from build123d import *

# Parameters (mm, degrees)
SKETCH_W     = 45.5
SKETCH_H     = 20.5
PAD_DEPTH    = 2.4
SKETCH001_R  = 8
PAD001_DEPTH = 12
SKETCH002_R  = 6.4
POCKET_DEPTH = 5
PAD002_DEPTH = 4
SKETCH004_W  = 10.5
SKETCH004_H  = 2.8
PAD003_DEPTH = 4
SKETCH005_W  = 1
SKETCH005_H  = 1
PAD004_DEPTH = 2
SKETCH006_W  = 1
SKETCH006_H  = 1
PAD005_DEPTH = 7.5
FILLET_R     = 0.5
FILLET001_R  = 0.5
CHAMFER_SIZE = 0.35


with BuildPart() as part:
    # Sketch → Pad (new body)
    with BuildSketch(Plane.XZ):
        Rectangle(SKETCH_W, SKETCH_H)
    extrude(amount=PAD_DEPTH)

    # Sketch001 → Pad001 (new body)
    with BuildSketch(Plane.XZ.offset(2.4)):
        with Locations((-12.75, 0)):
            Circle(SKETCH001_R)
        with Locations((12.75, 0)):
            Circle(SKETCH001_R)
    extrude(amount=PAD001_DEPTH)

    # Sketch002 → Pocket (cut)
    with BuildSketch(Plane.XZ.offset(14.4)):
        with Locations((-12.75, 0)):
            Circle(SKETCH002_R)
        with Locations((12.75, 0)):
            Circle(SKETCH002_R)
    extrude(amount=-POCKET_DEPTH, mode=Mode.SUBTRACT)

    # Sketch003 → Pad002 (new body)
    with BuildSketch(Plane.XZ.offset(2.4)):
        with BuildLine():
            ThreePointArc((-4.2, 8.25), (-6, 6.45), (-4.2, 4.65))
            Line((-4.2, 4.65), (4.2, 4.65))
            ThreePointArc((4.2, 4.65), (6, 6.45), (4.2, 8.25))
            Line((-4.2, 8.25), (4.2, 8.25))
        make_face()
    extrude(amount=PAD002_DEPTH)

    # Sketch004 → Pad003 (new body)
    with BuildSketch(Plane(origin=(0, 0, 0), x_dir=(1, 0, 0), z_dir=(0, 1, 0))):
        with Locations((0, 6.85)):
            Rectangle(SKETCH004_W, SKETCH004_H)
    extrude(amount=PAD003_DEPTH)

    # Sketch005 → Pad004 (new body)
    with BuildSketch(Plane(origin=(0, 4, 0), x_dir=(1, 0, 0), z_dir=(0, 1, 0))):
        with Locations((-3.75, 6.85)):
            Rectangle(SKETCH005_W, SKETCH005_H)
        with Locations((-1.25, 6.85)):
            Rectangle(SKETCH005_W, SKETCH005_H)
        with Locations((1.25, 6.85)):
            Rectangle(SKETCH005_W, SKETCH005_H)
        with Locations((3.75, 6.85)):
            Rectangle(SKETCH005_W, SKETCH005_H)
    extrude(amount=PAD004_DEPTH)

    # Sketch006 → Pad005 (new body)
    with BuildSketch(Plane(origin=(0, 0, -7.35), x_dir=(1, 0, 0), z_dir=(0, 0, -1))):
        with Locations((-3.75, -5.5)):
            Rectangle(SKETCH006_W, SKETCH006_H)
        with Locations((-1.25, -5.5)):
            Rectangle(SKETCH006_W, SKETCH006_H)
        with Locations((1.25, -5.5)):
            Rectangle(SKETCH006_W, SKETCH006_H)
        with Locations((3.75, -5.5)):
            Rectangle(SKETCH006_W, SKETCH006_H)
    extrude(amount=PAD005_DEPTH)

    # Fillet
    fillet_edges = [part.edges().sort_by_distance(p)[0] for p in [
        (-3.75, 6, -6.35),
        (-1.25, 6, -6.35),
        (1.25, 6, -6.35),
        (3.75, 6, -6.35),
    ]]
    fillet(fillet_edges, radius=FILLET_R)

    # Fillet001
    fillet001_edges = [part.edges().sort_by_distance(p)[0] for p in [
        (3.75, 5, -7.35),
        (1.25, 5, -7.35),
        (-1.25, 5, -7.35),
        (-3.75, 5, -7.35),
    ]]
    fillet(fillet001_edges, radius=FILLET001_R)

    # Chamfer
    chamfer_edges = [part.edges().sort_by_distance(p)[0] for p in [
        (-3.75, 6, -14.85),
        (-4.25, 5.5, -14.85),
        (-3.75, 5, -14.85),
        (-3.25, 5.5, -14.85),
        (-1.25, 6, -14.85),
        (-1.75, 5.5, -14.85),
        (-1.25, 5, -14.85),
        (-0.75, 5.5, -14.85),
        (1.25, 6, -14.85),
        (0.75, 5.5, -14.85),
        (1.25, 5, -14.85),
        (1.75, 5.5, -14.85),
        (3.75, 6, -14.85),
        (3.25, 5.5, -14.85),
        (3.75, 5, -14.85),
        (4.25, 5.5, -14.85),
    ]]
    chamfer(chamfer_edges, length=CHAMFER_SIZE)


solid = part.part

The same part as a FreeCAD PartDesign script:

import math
import FreeCAD as App
import Part
import Sketcher
Q = App.Units.Quantity


def edges_at(feature, points):
    """Names of the edges that pass closest to the given points."""
    edges = feature.Shape.Edges
    near = lambda p: min(range(len(edges)), key=lambda i: edges[i].distToShape(Part.Vertex(*p))[0])
    return sorted({f"Edge{near(p) + 1}" for p in points})


def add_polygon(sketch, points):
    """Adds a closed chain of lines whose ends are joined by coincident constraints."""
    first, n = sketch.GeometryCount, len(points)
    for a, b in zip(points, points[1:] + points[:1]):
        sketch.addGeometry(Part.LineSegment(App.Vector(*a, 0), App.Vector(*b, 0)), False)
    for i in range(n):
        sketch.addConstraint(Sketcher.Constraint("Coincident", first + i, 2, first + (i + 1) % n, 1))

doc = App.newDocument("Part")
body = doc.addObject("PartDesign::Body", "Body")

# Sketch on XZ plane
sketch1 = doc.addObject("Sketcher::SketchObject", "Sketch")
body.addObject(sketch1)
sketch1.AttachmentSupport = (doc.XZ_Plane, [""])
sketch1.MapMode = "FlatFace"
add_polygon(sketch1, [(-23, 10), (-23, -10), (23, -10), (23, 10)])  # lines 0-3
sketch1.addConstraint([
    Sketcher.Constraint("Vertical", 0),
    Sketcher.Constraint("Horizontal", 1),
    Sketcher.Constraint("Vertical", 2),
    Sketcher.Constraint("Horizontal", 3),
    Sketcher.Constraint("Symmetric", 0, 2, 2, 2, -1, 1),
    Sketcher.Constraint("DistanceX", 1, 1, 1, 2, Q("45.5 mm")),
    Sketcher.Constraint("DistanceY", 0, 2, 0, 1, Q("20.5 mm")),
])
pad1 = doc.addObject("PartDesign::Pad", "Pad")
body.addObject(pad1)
pad1.Profile = sketch1
pad1.Length = 2.4

# Sketch on XZ plane
sketch2 = doc.addObject("Sketcher::SketchObject", "Sketch001")
body.addObject(sketch2)
sketch2.AttachmentSupport = (doc.XZ_Plane, [""])
sketch2.MapMode = "FlatFace"
sketch2.AttachmentOffset = App.Placement(App.Vector(0, 0, 2.4), App.Rotation())
sketch2.addGeometry([
    Part.Circle(App.Vector(-13, 0, 0), App.Vector(0, 0, 1), 8),
    Part.Circle(App.Vector(13, 0, 0), App.Vector(0, 0, 1), 8),
], False)
sketch2.addConstraint([
    Sketcher.Constraint("Equal", 0, 1),
    Sketcher.Constraint("Symmetric", 0, 3, 1, 3, -1, 1),
    Sketcher.Constraint("PointOnObject", 0, 3, -1),
    Sketcher.Constraint("Diameter", 0, Q("16 mm")),
    Sketcher.Constraint("DistanceX", 0, 3, 1, 3, Q("25.5 mm")),
])
pad2 = doc.addObject("PartDesign::Pad", "Pad001")
body.addObject(pad2)
pad2.Profile = sketch2
pad2.Length = 12

# Sketch on XZ plane
sketch3 = doc.addObject("Sketcher::SketchObject", "Sketch002")
body.addObject(sketch3)
sketch3.AttachmentSupport = (doc.XZ_Plane, [""])
sketch3.MapMode = "FlatFace"
sketch3.AttachmentOffset = App.Placement(App.Vector(0, 0, 14.4), App.Rotation())
sketch3.addGeometry([
    Part.Circle(App.Vector(-13, 0, 0), App.Vector(0, 0, 1), 6),
    Part.Circle(App.Vector(13, 0, 0), App.Vector(0, 0, 1), 6),
], False)
sketch3.addConstraint([
    Sketcher.Constraint("Equal", 0, 1),
    Sketcher.Constraint("Symmetric", 0, 3, 1, 3, -1, 1),
    Sketcher.Constraint("PointOnObject", 0, 3, -1),
    Sketcher.Constraint("Diameter", 0, Q("12.8 mm")),
    Sketcher.Constraint("DistanceX", 0, 3, 1, 3, Q("25.5 mm")),
])
pocket1 = doc.addObject("PartDesign::Pocket", "Pocket")
body.addObject(pocket1)
pocket1.Profile = sketch3
pocket1.Length = 5

# Sketch on XZ plane
sketch4 = doc.addObject("Sketcher::SketchObject", "Sketch003")
body.addObject(sketch4)
sketch4.AttachmentSupport = (doc.XZ_Plane, [""])
sketch4.MapMode = "FlatFace"
sketch4.AttachmentOffset = App.Placement(App.Vector(0, 0, 2.4), App.Rotation())
sketch4.addGeometry([
    Part.ArcOfCircle(Part.Circle(App.Vector(-4.2, 6.5, 0), App.Vector(0, 0, 1), 1.8), math.radians(90), math.radians(270)),
    Part.LineSegment(App.Vector(-4.2, 4.7, 0), App.Vector(4.2, 4.7, 0)),
    Part.ArcOfCircle(Part.Circle(App.Vector(4.2, 6.5, 0), App.Vector(0, 0, 1), 1.8), math.radians(-90), math.radians(90)),
    Part.LineSegment(App.Vector(4.2, 8.2, 0), App.Vector(-4.2, 8.2, 0)),
], False)
sketch4.addConstraint([
    Sketcher.Constraint("Tangent", 0, 2, 1, 1),
    Sketcher.Constraint("Tangent", 1, 2, 2, 1),
    Sketcher.Constraint("Tangent", 2, 2, 3, 1),
    Sketcher.Constraint("Tangent", 3, 2, 0, 1),
    Sketcher.Constraint("Horizontal", 1),
    Sketcher.Constraint("Horizontal", 3),
    Sketcher.Constraint("Radius", 0, Q("1.8 mm")),
    Sketcher.Constraint("DistanceX", 1, 1, 1, 2, Q("8.4 mm")),
    Sketcher.Constraint("DistanceX", 0, 3, -1, 1, Q("4.2 mm")),
    Sketcher.Constraint("DistanceY", -1, 1, 0, 3, Q("6.45 mm")),
])
pad3 = doc.addObject("PartDesign::Pad", "Pad002")
body.addObject(pad3)
pad3.Profile = sketch4
pad3.Length = 4

# Sketch on XZ plane
sketch5 = doc.addObject("Sketcher::SketchObject", "Sketch004")
body.addObject(sketch5)
sketch5.AttachmentSupport = (doc.XZ_Plane, [""])
sketch5.MapMode = "FlatFace"
add_polygon(sketch5, [(-5.2, -8.2), (-5.2, -5.5), (5.2, -5.5), (5.2, -8.2)])  # lines 0-3
sketch5.addConstraint([
    Sketcher.Constraint("Vertical", 0),
    Sketcher.Constraint("Horizontal", 1),
    Sketcher.Constraint("Vertical", 2),
    Sketcher.Constraint("Horizontal", 3),
    Sketcher.Constraint("DistanceX", 1, 1, 1, 2, Q("10.5 mm")),
    Sketcher.Constraint("DistanceY", 0, 1, 0, 2, Q("2.8 mm")),
    Sketcher.Constraint("DistanceX", 0, 2, -1, 1, Q("5.25 mm")),
    Sketcher.Constraint("DistanceY", 0, 2, -1, 1, Q("5.45 mm")),
])
pad4 = doc.addObject("PartDesign::Pad", "Pad003")
body.addObject(pad4)
pad4.Profile = sketch5
pad4.Length = 4
pad4.Reversed = True

# Sketch on XZ plane
sketch6 = doc.addObject("Sketcher::SketchObject", "Sketch005")
body.addObject(sketch6)
sketch6.AttachmentSupport = (doc.XZ_Plane, [""])
sketch6.MapMode = "FlatFace"
sketch6.AttachmentOffset = App.Placement(App.Vector(0, 0, -4), App.Rotation())
add_polygon(sketch6, [(-4.2, -7.3), (-4.2, -6.3), (-3.2, -6.3), (-3.2, -7.3)])  # lines 0-3
add_polygon(sketch6, [(-1.8, -7.3), (-1.8, -6.3), (-0.8, -6.3), (-0.8, -7.3)])  # lines 4-7
add_polygon(sketch6, [(0.8, -7.3), (0.8, -6.3), (1.8, -6.3), (1.8, -7.3)])  # lines 8-11
add_polygon(sketch6, [(3.2, -7.3), (3.2, -6.3), (4.2, -6.3), (4.2, -7.3)])  # lines 12-15
sketch6.addConstraint([
    Sketcher.Constraint("Vertical", 0),
    Sketcher.Constraint("Horizontal", 1),
    Sketcher.Constraint("Vertical", 2),
    Sketcher.Constraint("Horizontal", 3),
    Sketcher.Constraint("Vertical", 4),
    Sketcher.Constraint("Horizontal", 5),
    Sketcher.Constraint("Vertical", 6),
    Sketcher.Constraint("Horizontal", 7),
    Sketcher.Constraint("Vertical", 8),
    Sketcher.Constraint("Horizontal", 9),
    Sketcher.Constraint("Vertical", 10),
    Sketcher.Constraint("Horizontal", 11),
    Sketcher.Constraint("Vertical", 12),
    Sketcher.Constraint("Horizontal", 13),
    Sketcher.Constraint("Vertical", 14),
    Sketcher.Constraint("Horizontal", 15),
    Sketcher.Constraint("Symmetric", 5, 2, 8, 2, -2),
    Sketcher.Constraint("Symmetric", 7, 2, 10, 2, -2),
    Sketcher.Constraint("Symmetric", 1, 2, 12, 2, -2),
    Sketcher.Constraint("Symmetric", 3, 2, 14, 2, -2),
    Sketcher.Constraint("Horizontal", 1, 2, 4, 2),
    Sketcher.Constraint("Horizontal", 3, 2, 6, 2),
    Sketcher.Constraint("Equal", 3, 5),
    Sketcher.Constraint("Equal", 15, 0),
    Sketcher.Constraint("DistanceX", 1, 1, 1, 2, Q("1 mm")),
    Sketcher.Constraint("DistanceX", 1, 2, 8, 2, Q("4 mm")),
    Sketcher.Constraint("DistanceX", 1, 2, 4, 2, Q("1.5 mm")),
    Sketcher.Constraint("DistanceY", 0, 2, -1, 1, Q("6.35 mm")),
])
pad5 = doc.addObject("PartDesign::Pad", "Pad004")
body.addObject(pad5)
pad5.Profile = sketch6
pad5.Length = 2
pad5.Reversed = True

# Sketch on XY plane
sketch7 = doc.addObject("Sketcher::SketchObject", "Sketch006")
body.addObject(sketch7)
sketch7.AttachmentSupport = (doc.XY_Plane, [""])
sketch7.MapMode = "FlatFace"
sketch7.AttachmentOffset = App.Placement(App.Vector(0, 0, -7.35), App.Rotation())
add_polygon(sketch7, [(-4.2, 5), (-4.2, 6), (-3.2, 6), (-3.2, 5)])  # lines 0-3
add_polygon(sketch7, [(-1.8, 5), (-1.8, 6), (-0.8, 6), (-0.8, 5)])  # lines 4-7
add_polygon(sketch7, [(0.8, 5), (0.8, 6), (1.8, 6), (1.8, 5)])  # lines 8-11
add_polygon(sketch7, [(3.2, 5), (3.2, 6), (4.2, 6), (4.2, 5)])  # lines 12-15
sketch7.addConstraint([
    Sketcher.Constraint("Vertical", 0),
    Sketcher.Constraint("Horizontal", 1),
    Sketcher.Constraint("Vertical", 2),
    Sketcher.Constraint("Horizontal", 3),
    Sketcher.Constraint("Vertical", 4),
    Sketcher.Constraint("Horizontal", 5),
    Sketcher.Constraint("Vertical", 6),
    Sketcher.Constraint("Horizontal", 7),
    Sketcher.Constraint("Vertical", 8),
    Sketcher.Constraint("Horizontal", 9),
    Sketcher.Constraint("Vertical", 10),
    Sketcher.Constraint("Horizontal", 11),
    Sketcher.Constraint("Vertical", 12),
    Sketcher.Constraint("Horizontal", 13),
    Sketcher.Constraint("Vertical", 14),
    Sketcher.Constraint("Horizontal", 15),
    Sketcher.Constraint("Symmetric", 5, 2, 8, 2, -2),
    Sketcher.Constraint("Symmetric", 7, 2, 10, 2, -2),
    Sketcher.Constraint("Symmetric", 1, 2, 12, 2, -2),
    Sketcher.Constraint("Symmetric", 3, 2, 14, 2, -2),
    Sketcher.Constraint("Horizontal", 1, 2, 4, 2),
    Sketcher.Constraint("Horizontal", 3, 2, 6, 2),
    Sketcher.Constraint("Equal", 3, 5),
    Sketcher.Constraint("Equal", 15, 0),
    Sketcher.Constraint("DistanceX", 1, 1, 1, 2, Q("1 mm")),
    Sketcher.Constraint("DistanceY", -1, 1, 0, 2, Q("6 mm")),
    Sketcher.Constraint("DistanceX", 1, 2, 8, 2, Q("4 mm")),
    Sketcher.Constraint("DistanceX", 1, 2, 4, 2, Q("1.5 mm")),
])
pad6 = doc.addObject("PartDesign::Pad", "Pad005")
body.addObject(pad6)
pad6.Profile = sketch7
pad6.Length = 7.5
pad6.Reversed = True
doc.recompute()

fillet = doc.addObject("PartDesign::Fillet", "Fillet")
body.addObject(fillet)
fillet.Base = (pad6, edges_at(pad6, [
    (-3.75, 6, -6.35),
    (-1.25, 6, -6.35),
    (1.25, 6, -6.35),
    (3.75, 6, -6.35),
]))
fillet.Radius = 0.5
doc.recompute()

fillet2 = doc.addObject("PartDesign::Fillet", "Fillet001")
body.addObject(fillet2)
fillet2.Base = (fillet, edges_at(fillet, [
    (3.75, 5, -7.35),
    (1.25, 5, -7.35),
    (-1.25, 5, -7.35),
    (-3.75, 5, -7.35),
]))
fillet2.Radius = 0.5
doc.recompute()

chamfer = doc.addObject("PartDesign::Chamfer", "Chamfer")
body.addObject(chamfer)
chamfer.Base = (fillet2, edges_at(fillet2, [
    (-3.75, 6, -14.85),
    (-4.25, 5.5, -14.85),
    (-3.75, 5, -14.85),
    (-3.25, 5.5, -14.85),
    (-1.25, 6, -14.85),
    (-1.75, 5.5, -14.85),
    (-1.25, 5, -14.85),
    (-0.75, 5.5, -14.85),
    (1.25, 6, -14.85),
    (0.75, 5.5, -14.85),
    (1.25, 5, -14.85),
    (1.75, 5.5, -14.85),
    (3.75, 6, -14.85),
    (3.25, 5.5, -14.85),
    (3.75, 5, -14.85),
    (4.25, 5.5, -14.85),
]))
chamfer.Size = 0.35

doc.recompute()
